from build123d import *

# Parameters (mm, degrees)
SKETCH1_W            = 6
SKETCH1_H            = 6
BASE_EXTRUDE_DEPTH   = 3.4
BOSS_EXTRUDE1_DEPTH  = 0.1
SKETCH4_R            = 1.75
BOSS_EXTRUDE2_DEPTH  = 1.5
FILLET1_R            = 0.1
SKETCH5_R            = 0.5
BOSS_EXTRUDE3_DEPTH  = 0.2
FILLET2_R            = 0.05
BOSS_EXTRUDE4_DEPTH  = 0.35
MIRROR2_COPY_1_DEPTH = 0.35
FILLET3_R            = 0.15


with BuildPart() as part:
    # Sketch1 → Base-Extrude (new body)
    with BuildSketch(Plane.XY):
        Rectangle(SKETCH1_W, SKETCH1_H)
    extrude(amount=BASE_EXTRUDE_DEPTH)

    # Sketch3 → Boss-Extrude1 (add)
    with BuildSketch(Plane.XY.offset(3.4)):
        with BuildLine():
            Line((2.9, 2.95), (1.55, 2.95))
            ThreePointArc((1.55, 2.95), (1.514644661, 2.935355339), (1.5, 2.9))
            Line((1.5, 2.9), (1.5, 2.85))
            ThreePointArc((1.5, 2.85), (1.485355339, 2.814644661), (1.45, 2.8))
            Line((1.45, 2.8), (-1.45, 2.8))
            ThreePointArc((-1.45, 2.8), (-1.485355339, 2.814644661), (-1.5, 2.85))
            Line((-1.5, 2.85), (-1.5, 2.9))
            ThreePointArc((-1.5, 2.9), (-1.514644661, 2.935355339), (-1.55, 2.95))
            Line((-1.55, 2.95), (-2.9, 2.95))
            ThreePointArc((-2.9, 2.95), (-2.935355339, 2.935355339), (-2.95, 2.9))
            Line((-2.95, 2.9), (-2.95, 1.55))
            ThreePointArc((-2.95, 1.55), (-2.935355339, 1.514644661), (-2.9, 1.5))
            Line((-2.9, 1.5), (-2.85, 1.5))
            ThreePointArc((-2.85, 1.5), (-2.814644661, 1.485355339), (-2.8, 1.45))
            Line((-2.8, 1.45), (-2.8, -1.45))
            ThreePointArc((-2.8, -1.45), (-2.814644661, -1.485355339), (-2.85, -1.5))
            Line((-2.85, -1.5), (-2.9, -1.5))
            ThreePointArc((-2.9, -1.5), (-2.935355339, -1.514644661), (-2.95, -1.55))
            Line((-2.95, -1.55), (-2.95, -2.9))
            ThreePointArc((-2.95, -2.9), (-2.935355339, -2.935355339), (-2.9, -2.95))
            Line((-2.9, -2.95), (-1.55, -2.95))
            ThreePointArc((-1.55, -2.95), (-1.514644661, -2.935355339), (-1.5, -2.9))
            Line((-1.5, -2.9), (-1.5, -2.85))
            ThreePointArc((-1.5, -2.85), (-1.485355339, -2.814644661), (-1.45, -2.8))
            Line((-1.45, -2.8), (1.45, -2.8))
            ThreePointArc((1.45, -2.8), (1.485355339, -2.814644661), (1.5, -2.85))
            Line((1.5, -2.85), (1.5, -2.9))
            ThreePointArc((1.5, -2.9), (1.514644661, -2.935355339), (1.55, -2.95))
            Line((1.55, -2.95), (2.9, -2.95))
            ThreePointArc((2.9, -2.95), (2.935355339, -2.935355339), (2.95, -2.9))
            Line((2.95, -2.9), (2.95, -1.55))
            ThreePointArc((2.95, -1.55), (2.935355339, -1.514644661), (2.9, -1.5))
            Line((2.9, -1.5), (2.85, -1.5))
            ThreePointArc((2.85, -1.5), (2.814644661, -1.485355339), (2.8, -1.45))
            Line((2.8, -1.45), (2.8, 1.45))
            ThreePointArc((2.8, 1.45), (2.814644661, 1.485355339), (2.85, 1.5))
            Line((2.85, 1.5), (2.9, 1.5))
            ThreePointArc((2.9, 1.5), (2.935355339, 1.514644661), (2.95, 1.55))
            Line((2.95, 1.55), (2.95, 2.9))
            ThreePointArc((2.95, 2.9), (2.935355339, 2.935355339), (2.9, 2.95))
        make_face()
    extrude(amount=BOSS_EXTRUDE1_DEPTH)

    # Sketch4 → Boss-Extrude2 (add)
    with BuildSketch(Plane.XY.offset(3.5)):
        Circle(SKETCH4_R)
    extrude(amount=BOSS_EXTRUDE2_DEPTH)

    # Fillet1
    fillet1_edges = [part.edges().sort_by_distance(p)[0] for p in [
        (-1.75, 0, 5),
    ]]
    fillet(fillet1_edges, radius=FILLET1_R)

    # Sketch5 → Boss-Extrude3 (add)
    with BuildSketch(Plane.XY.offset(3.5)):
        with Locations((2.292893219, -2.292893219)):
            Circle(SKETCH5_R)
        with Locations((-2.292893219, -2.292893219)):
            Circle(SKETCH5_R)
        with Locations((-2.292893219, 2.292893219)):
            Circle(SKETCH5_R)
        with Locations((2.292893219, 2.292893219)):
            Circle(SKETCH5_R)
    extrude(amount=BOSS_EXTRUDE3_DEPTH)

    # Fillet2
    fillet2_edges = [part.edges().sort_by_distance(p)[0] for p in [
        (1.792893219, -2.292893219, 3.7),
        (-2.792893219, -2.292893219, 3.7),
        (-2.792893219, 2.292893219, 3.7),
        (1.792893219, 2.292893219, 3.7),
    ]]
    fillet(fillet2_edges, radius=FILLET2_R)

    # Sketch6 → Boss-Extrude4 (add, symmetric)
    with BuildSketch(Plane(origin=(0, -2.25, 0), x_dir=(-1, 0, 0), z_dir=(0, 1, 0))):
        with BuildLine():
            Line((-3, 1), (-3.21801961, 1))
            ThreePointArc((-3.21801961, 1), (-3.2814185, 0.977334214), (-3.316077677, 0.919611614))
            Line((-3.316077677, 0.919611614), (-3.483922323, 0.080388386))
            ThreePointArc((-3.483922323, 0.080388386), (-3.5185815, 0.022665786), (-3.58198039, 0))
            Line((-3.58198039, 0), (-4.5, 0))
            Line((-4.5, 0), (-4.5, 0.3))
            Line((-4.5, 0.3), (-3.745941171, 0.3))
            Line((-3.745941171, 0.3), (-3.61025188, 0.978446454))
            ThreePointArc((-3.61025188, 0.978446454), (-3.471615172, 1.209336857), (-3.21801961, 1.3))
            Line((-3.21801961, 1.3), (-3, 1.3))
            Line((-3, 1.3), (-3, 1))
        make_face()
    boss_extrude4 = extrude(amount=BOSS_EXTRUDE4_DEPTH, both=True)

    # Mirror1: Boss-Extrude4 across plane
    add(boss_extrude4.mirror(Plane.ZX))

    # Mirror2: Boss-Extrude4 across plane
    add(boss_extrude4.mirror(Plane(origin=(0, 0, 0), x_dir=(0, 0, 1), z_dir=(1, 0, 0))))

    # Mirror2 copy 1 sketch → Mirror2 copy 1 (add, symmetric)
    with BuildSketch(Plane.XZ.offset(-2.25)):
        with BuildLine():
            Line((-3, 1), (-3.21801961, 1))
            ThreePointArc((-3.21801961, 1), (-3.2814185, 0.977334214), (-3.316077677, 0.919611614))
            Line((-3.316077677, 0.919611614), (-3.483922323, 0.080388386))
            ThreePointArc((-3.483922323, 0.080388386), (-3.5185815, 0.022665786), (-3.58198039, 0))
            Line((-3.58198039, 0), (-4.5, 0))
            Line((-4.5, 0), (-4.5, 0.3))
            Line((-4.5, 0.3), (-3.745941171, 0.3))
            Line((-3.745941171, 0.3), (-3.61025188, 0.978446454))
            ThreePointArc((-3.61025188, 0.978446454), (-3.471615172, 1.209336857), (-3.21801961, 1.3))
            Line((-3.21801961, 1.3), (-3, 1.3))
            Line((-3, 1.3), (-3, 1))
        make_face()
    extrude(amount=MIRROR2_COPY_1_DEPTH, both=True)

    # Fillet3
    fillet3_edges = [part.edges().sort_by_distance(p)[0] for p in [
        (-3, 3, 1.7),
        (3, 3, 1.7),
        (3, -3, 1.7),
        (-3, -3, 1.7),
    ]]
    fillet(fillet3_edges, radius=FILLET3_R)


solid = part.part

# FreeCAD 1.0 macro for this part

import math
import FreeCAD as App
import Part
import Sketcher

V = App.Vector
Q = App.Units.Quantity


def edges_at(feature, points):
    """Names of the edges that pass closest to the given points."""
    edges = feature.Shape.Edges
    near = lambda p: min(range(len(edges)), key=lambda i: edges[i].distToShape(Part.Vertex(*p))[0])
    return sorted({f"Edge{near(p) + 1}" for p in points})


def add_polygon(sketch, points):
    """Adds a closed chain of lines whose ends are joined by coincident constraints."""
    first, n = sketch.GeometryCount, len(points)
    for a, b in zip(points, points[1:] + points[:1]):
        sketch.addGeometry(Part.LineSegment(App.Vector(*a, 0), App.Vector(*b, 0)), False)
    for i in range(n):
        sketch.addConstraint(Sketcher.Constraint("Coincident", first + i, 2, first + (i + 1) % n, 1))

doc = App.newDocument("Part")
body = doc.addObject("PartDesign::Body", "Body")

sketch1 = doc.addObject("Sketcher::SketchObject", "Sketch")
body.addObject(sketch1)
sketch1.AttachmentSupport = (doc.XY_Plane, [""])
sketch1.MapMode = "FlatFace"
add_polygon(sketch1, [(-3, 3), (-3, -3), (3, -3), (3, 3)])
sketch1.addConstraint([
    Sketcher.Constraint("Vertical", 0),
    Sketcher.Constraint("Horizontal", 1),
    Sketcher.Constraint("Vertical", 2),
    Sketcher.Constraint("Horizontal", 3),
    Sketcher.Constraint("Symmetric", 0, 2, 2, 2, -1, 1),
    Sketcher.Constraint("Equal", 3, 0),
    Sketcher.Constraint("DistanceX", 1, 1, 1, 2, Q("6 mm")),
])
pad1 = doc.addObject("PartDesign::Pad", "Pad")
body.addObject(pad1)
pad1.Profile = sketch1
pad1.Length = 3.4

sketch2 = doc.addObject("Sketcher::SketchObject", "Sketch001")
body.addObject(sketch2)
sketch2.AttachmentSupport = (doc.XY_Plane, [""])
sketch2.MapMode = "FlatFace"
sketch2.AttachmentOffset = App.Placement(V(0, 0, 3.4), App.Rotation())
sketch2.addGeometry([
    Part.LineSegment(V(2.9, 2.95, 0), V(1.55, 2.95, 0)),
    Part.ArcOfCircle(Part.Circle(V(1.55, 2.9, 0), V(0, 0, 1), 0.05), math.radians(90), math.radians(180)),
    Part.LineSegment(V(1.5, 2.9, 0), V(1.5, 2.85, 0)),
    Part.ArcOfCircle(Part.Circle(V(1.45, 2.85, 0), V(0, 0, 1), 0.05), math.radians(-90), math.radians(0)),
    Part.LineSegment(V(1.45, 2.8, 0), V(-1.45, 2.8, 0)),
    Part.ArcOfCircle(Part.Circle(V(-1.45, 2.85, 0), V(0, 0, 1), 0.05), math.radians(180), math.radians(270)),
    Part.LineSegment(V(-1.5, 2.85, 0), V(-1.5, 2.9, 0)),
    Part.ArcOfCircle(Part.Circle(V(-1.55, 2.9, 0), V(0, 0, 1), 0.05), math.radians(0), math.radians(90)),
    Part.LineSegment(V(-1.55, 2.95, 0), V(-2.9, 2.95, 0)),
    Part.ArcOfCircle(Part.Circle(V(-2.9, 2.9, 0), V(0, 0, 1), 0.05), math.radians(90), math.radians(180)),
    Part.LineSegment(V(-2.95, 2.9, 0), V(-2.95, 1.55, 0)),
    Part.ArcOfCircle(Part.Circle(V(-2.9, 1.55, 0), V(0, 0, 1), 0.05), math.radians(180), math.radians(270)),
    Part.LineSegment(V(-2.9, 1.5, 0), V(-2.85, 1.5, 0)),
    Part.ArcOfCircle(Part.Circle(V(-2.85, 1.45, 0), V(0, 0, 1), 0.05), math.radians(0), math.radians(90)),
    Part.LineSegment(V(-2.8, 1.45, 0), V(-2.8, -1.45, 0)),
    Part.ArcOfCircle(Part.Circle(V(-2.85, -1.45, 0), V(0, 0, 1), 0.05), math.radians(-90), math.radians(0)),
    Part.LineSegment(V(-2.85, -1.5, 0), V(-2.9, -1.5, 0)),
    Part.ArcOfCircle(Part.Circle(V(-2.9, -1.55, 0), V(0, 0, 1), 0.05), math.radians(90), math.radians(180)),
    Part.LineSegment(V(-2.95, -1.55, 0), V(-2.95, -2.9, 0)),
    Part.ArcOfCircle(Part.Circle(V(-2.9, -2.9, 0), V(0, 0, 1), 0.05), math.radians(180), math.radians(270)),
    Part.LineSegment(V(-2.9, -2.95, 0), V(-1.55, -2.95, 0)),
    Part.ArcOfCircle(Part.Circle(V(-1.55, -2.9, 0), V(0, 0, 1), 0.05), math.radians(-90), math.radians(0)),
    Part.LineSegment(V(-1.5, -2.9, 0), V(-1.5, -2.85, 0)),
    Part.ArcOfCircle(Part.Circle(V(-1.45, -2.85, 0), V(0, 0, 1), 0.05), math.radians(90), math.radians(180)),
    Part.LineSegment(V(-1.45, -2.8, 0), V(1.45, -2.8, 0)),
    Part.ArcOfCircle(Part.Circle(V(1.45, -2.85, 0), V(0, 0, 1), 0.05), math.radians(0), math.radians(90)),
    Part.LineSegment(V(1.5, -2.85, 0), V(1.5, -2.9, 0)),
    Part.ArcOfCircle(Part.Circle(V(1.55, -2.9, 0), V(0, 0, 1), 0.05), math.radians(180), math.radians(270)),
    Part.LineSegment(V(1.55, -2.95, 0), V(2.9, -2.95, 0)),
    Part.ArcOfCircle(Part.Circle(V(2.9, -2.9, 0), V(0, 0, 1), 0.05), math.radians(-90), math.radians(0)),
    Part.LineSegment(V(2.95, -2.9, 0), V(2.95, -1.55, 0)),
    Part.ArcOfCircle(Part.Circle(V(2.9, -1.55, 0), V(0, 0, 1), 0.05), math.radians(0), math.radians(90)),
    Part.LineSegment(V(2.9, -1.5, 0), V(2.85, -1.5, 0)),
    Part.ArcOfCircle(Part.Circle(V(2.85, -1.45, 0), V(0, 0, 1), 0.05), math.radians(180), math.radians(270)),
    Part.LineSegment(V(2.8, -1.45, 0), V(2.8, 1.45, 0)),
    Part.ArcOfCircle(Part.Circle(V(2.85, 1.45, 0), V(0, 0, 1), 0.05), math.radians(90), math.radians(180)),
    Part.LineSegment(V(2.85, 1.5, 0), V(2.9, 1.5, 0)),
    Part.ArcOfCircle(Part.Circle(V(2.9, 1.55, 0), V(0, 0, 1), 0.05), math.radians(-90), math.radians(0)),
    Part.LineSegment(V(2.95, 1.55, 0), V(2.95, 2.9, 0)),
    Part.ArcOfCircle(Part.Circle(V(2.9, 2.9, 0), V(0, 0, 1), 0.05), math.radians(0), math.radians(90)),
], False)
sketch2.addConstraint([
    Sketcher.Constraint("Tangent", 0, 2, 1, 1),
    Sketcher.Constraint("Tangent", 1, 2, 2, 1),
    Sketcher.Constraint("Tangent", 2, 2, 3, 2),
    Sketcher.Constraint("Tangent", 3, 1, 4, 1),
    Sketcher.Constraint("Tangent", 4, 2, 5, 2),
    Sketcher.Constraint("Tangent", 5, 1, 6, 1),
    Sketcher.Constraint("Tangent", 6, 2, 7, 1),
    Sketcher.Constraint("Tangent", 7, 2, 8, 1),
    Sketcher.Constraint("Tangent", 8, 2, 9, 1),
    Sketcher.Constraint("Tangent", 9, 2, 10, 1),
    Sketcher.Constraint("Tangent", 10, 2, 11, 1),
    Sketcher.Constraint("Tangent", 11, 2, 12, 1),
    Sketcher.Constraint("Tangent", 12, 2, 13, 2),
    Sketcher.Constraint("Tangent", 13, 1, 14, 1),
    Sketcher.Constraint("Tangent", 14, 2, 15, 2),
    Sketcher.Constraint("Tangent", 15, 1, 16, 1),
    Sketcher.Constraint("Tangent", 16, 2, 17, 1),
    Sketcher.Constraint("Tangent", 17, 2, 18, 1),
    Sketcher.Constraint("Tangent", 18, 2, 19, 1),
    Sketcher.Constraint("Tangent", 19, 2, 20, 1),
    Sketcher.Constraint("Tangent", 20, 2, 21, 1),
    Sketcher.Constraint("Tangent", 21, 2, 22, 1),
    Sketcher.Constraint("Tangent", 22, 2, 23, 2),
    Sketcher.Constraint("Tangent", 23, 1, 24, 1),
    Sketcher.Constraint("Tangent", 24, 2, 25, 2),
    Sketcher.Constraint("Tangent", 25, 1, 26, 1),
    Sketcher.Constraint("Tangent", 26, 2, 27, 1),
    Sketcher.Constraint("Tangent", 27, 2, 28, 1),
    Sketcher.Constraint("Tangent", 28, 2, 29, 1),
    Sketcher.Constraint("Tangent", 29, 2, 30, 1),
    Sketcher.Constraint("Tangent", 30, 2, 31, 1),
    Sketcher.Constraint("Tangent", 31, 2, 32, 1),
    Sketcher.Constraint("Tangent", 32, 2, 33, 2),
    Sketcher.Constraint("Tangent", 33, 1, 34, 1),
    Sketcher.Constraint("Tangent", 34, 2, 35, 2),
    Sketcher.Constraint("Tangent", 35, 1, 36, 1),
    Sketcher.Constraint("Tangent", 36, 2, 37, 1),
    Sketcher.Constraint("Tangent", 37, 2, 38, 1),
    Sketcher.Constraint("Tangent", 38, 2, 39, 1),
    Sketcher.Constraint("Tangent", 39, 2, 0, 1),
    Sketcher.Constraint("Horizontal", 0),
    Sketcher.Constraint("Vertical", 2),
    Sketcher.Constraint("Horizontal", 4),
    Sketcher.Constraint("Vertical", 6),
    Sketcher.Constraint("Horizontal", 8),
    Sketcher.Constraint("Vertical", 10),
    Sketcher.Constraint("Horizontal", 12),
    Sketcher.Constraint("Vertical", 14),
    Sketcher.Constraint("Horizontal", 16),
    Sketcher.Constraint("Vertical", 18),
    Sketcher.Constraint("Horizontal", 20),
    Sketcher.Constraint("Vertical", 22),
    Sketcher.Constraint("Horizontal", 24),
    Sketcher.Constraint("Vertical", 26),
    Sketcher.Constraint("Horizontal", 28),
    Sketcher.Constraint("Vertical", 30),
    Sketcher.Constraint("Horizontal", 32),
    Sketcher.Constraint("Vertical", 34),
    Sketcher.Constraint("Horizontal", 36),
    Sketcher.Constraint("Vertical", 38),
    Sketcher.Constraint("Equal", 1, 3),
    Sketcher.Constraint("Equal", 3, 5),
    Sketcher.Constraint("Equal", 5, 7),
    Sketcher.Constraint("Equal", 7, 9),
    Sketcher.Constraint("Equal", 9, 11),
    Sketcher.Constraint("Equal", 11, 13),
    Sketcher.Constraint("Equal", 13, 15),
    Sketcher.Constraint("Equal", 15, 17),
    Sketcher.Constraint("Equal", 17, 19),
    Sketcher.Constraint("Equal", 19, 21),
    Sketcher.Constraint("Equal", 21, 23),
    Sketcher.Constraint("Equal", 23, 25),
    Sketcher.Constraint("Equal", 25, 27),
    Sketcher.Constraint("Equal", 27, 29),
    Sketcher.Constraint("Equal", 29, 31),
    Sketcher.Constraint("Equal", 31, 33),
    Sketcher.Constraint("Equal", 33, 35),
    Sketcher.Constraint("Equal", 35, 37),
    Sketcher.Constraint("Equal", 37, 39),
    Sketcher.Constraint("Symmetric", 1, 3, 21, 3, -1, 1),
    Sketcher.Constraint("Symmetric", 5, 3, 25, 3, -1, 1),
    Sketcher.Constraint("Symmetric", 9, 3, 29, 3, -1, 1),
    Sketcher.Constraint("Symmetric", 13, 3, 33, 3, -1, 1),
    Sketcher.Constraint("Symmetric", 17, 3, 37, 3, -1, 1),
    Sketcher.Constraint("Symmetric", 1, 3, 7, 3, -2),
    Sketcher.Constraint("Symmetric", 17, 3, 31, 3, -2),
    Sketcher.Constraint("Equal", 36, 2),
    Sketcher.Constraint("Equal", 28, 10),
    Sketcher.Constraint("Equal", 24, 14),
    Sketcher.Constraint("Radius", 1, Q("0.05 mm")),
    Sketcher.Constraint("DistanceX", 4, 2, 4, 1, Q("2.9 mm")),
    Sketcher.Constraint("DistanceX", 0, 2, 0, 1, Q("1.35 mm")),
    Sketcher.Constraint("DistanceX", 12, 1, 12, 2, Q("0.05 mm")),
])
pad2 = doc.addObject("PartDesign::Pad", "Pad001")
body.addObject(pad2)
pad2.Profile = sketch2
pad2.Length = 0.1

sketch3 = doc.addObject("Sketcher::SketchObject", "Sketch002")
body.addObject(sketch3)
sketch3.AttachmentSupport = (doc.XY_Plane, [""])
sketch3.MapMode = "FlatFace"
sketch3.AttachmentOffset = App.Placement(V(0, 0, 3.5), App.Rotation())
sketch3.addGeometry(Part.Circle(V(0, 0, 0), V(0, 0, 1), 1.8), False)
sketch3.addConstraint([
    Sketcher.Constraint("Coincident", 0, 3, -1, 1),
    Sketcher.Constraint("Diameter", 0, Q("3.5 mm")),
])
pad3 = doc.addObject("PartDesign::Pad", "Pad002")
body.addObject(pad3)
pad3.Profile = sketch3
pad3.Length = 1.5
doc.recompute()

fillet = doc.addObject("PartDesign::Fillet", "Fillet")
body.addObject(fillet)
fillet.Base = (pad3, edges_at(pad3, [(-1.75, 0, 5)]))
fillet.Radius = 0.1

sketch4 = doc.addObject("Sketcher::SketchObject", "Sketch003")
body.addObject(sketch4)
sketch4.AttachmentSupport = (doc.XY_Plane, [""])
sketch4.MapMode = "FlatFace"
sketch4.AttachmentOffset = App.Placement(V(0, 0, 3.5), App.Rotation())
sketch4.addGeometry([
    Part.Circle(V(2.3, -2.3, 0), V(0, 0, 1), 0.5),
    Part.Circle(V(-2.3, -2.3, 0), V(0, 0, 1), 0.5),
    Part.Circle(V(-2.3, 2.3, 0), V(0, 0, 1), 0.5),
    Part.Circle(V(2.3, 2.3, 0), V(0, 0, 1), 0.5),
], False)
sketch4.addConstraint([
    Sketcher.Constraint("Equal", 0, 1),
    Sketcher.Constraint("Equal", 1, 2),
    Sketcher.Constraint("Equal", 2, 3),
    Sketcher.Constraint("Symmetric", 0, 3, 2, 3, -1, 1),
    Sketcher.Constraint("Symmetric", 1, 3, 3, 3, -1, 1),
    Sketcher.Constraint("Symmetric", 0, 3, 1, 3, -2),
    Sketcher.Constraint("Diameter", 0, Q("1 mm")),
    Sketcher.Constraint("DistanceX", -1, 1, 0, 3, Q("2.292893 mm")),
    Sketcher.Constraint("DistanceY", 0, 3, -1, 1, Q("2.292893 mm")),
])
pad4 = doc.addObject("PartDesign::Pad", "Pad003")
body.addObject(pad4)
pad4.Profile = sketch4
pad4.Length = 0.2
doc.recompute()

fillet2 = doc.addObject("PartDesign::Fillet", "Fillet001")
body.addObject(fillet2)
fillet2.Base = (pad4, edges_at(pad4, [
    (1.793, -2.293, 3.7),
    (-2.793, -2.293, 3.7),
    (-2.793, 2.293, 3.7),
    (1.793, 2.293, 3.7),
]))
fillet2.Radius = 0.05

sketch5 = doc.addObject("Sketcher::SketchObject", "Sketch004")
body.addObject(sketch5)
sketch5.AttachmentSupport = (doc.XZ_Plane, [""])
sketch5.MapMode = "FlatFace"
sketch5.AttachmentOffset = App.Placement(V(0, 0, 2.25), App.Rotation())
sketch5.addGeometry([
    Part.LineSegment(V(3.22, 1, 0), V(3, 1, 0)),
    Part.LineSegment(V(3, 1, 0), V(3, 1.3, 0)),
    Part.LineSegment(V(3, 1.3, 0), V(3.22, 1.3, 0)),
    Part.ArcOfCircle(Part.Circle(V(3.22, 0.9, 0), V(0, 0, 1), 0.4), math.radians(11), math.radians(90)),
    Part.LineSegment(V(3.61, 0.98, 0), V(3.75, 0.3, 0)),
    Part.LineSegment(V(3.75, 0.3, 0), V(4.5, 0.3, 0)),
    Part.LineSegment(V(4.5, 0.3, 0), V(4.5, 0, 0)),
    Part.LineSegment(V(4.5, 0, 0), V(3.58, 0, 0)),
    Part.ArcOfCircle(Part.Circle(V(3.58, 0.1, 0), V(0, 0, 1), 0.1), math.radians(-169), math.radians(-90)),
    Part.LineSegment(V(3.48, 0.08, 0), V(3.32, 0.92, 0)),
    Part.ArcOfCircle(Part.Circle(V(3.22, 0.9, 0), V(0, 0, 1), 0.1), math.radians(11), math.radians(90)),
], False)
sketch5.addConstraint([
    Sketcher.Constraint("Coincident", 0, 2, 1, 1),
    Sketcher.Constraint("Coincident", 1, 2, 2, 1),
    Sketcher.Constraint("Tangent", 2, 2, 3, 2),
    Sketcher.Constraint("Tangent", 3, 1, 4, 1),
    Sketcher.Constraint("Coincident", 4, 2, 5, 1),
    Sketcher.Constraint("Coincident", 5, 2, 6, 1),
    Sketcher.Constraint("Coincident", 6, 2, 7, 1),
    Sketcher.Constraint("Tangent", 7, 2, 8, 2),
    Sketcher.Constraint("Tangent", 8, 1, 9, 1),
    Sketcher.Constraint("Tangent", 9, 2, 10, 1),
    Sketcher.Constraint("Tangent", 10, 2, 0, 1),
    Sketcher.Constraint("Horizontal", 0),
    Sketcher.Constraint("Vertical", 1),
    Sketcher.Constraint("Horizontal", 2),
    Sketcher.Constraint("Horizontal", 5),
    Sketcher.Constraint("Vertical", 6),
    Sketcher.Constraint("Horizontal", 7),
    Sketcher.Constraint("Coincident", 10, 3, 3, 3),
    Sketcher.Constraint("Equal", 8, 10),
    Sketcher.Constraint("PointOnObject", 6, 2, -1),
    Sketcher.Constraint("Parallel", 4, 9),
    Sketcher.Constraint("Equal", 1, 6),
    Sketcher.Constraint("Radius", 3, Q("0.4 mm")),
    Sketcher.Constraint("Radius", 8, Q("0.1 mm")),
    Sketcher.Constraint("DistanceX", -1, 1, 0, 2, Q("3 mm")),
    Sketcher.Constraint("DistanceY", -1, 1, 0, 2, Q("1 mm")),
    Sketcher.Constraint("DistanceX", -1, 1, 5, 2, Q("4.5 mm")),
    Sketcher.Constraint("DistanceX", 0, 2, 0, 1, Q("0.21802 mm")),
    Sketcher.Constraint("DistanceX", 5, 1, 5, 2, Q("0.754059 mm")),
])
pad5 = doc.addObject("PartDesign::Pad", "Pad004")
body.addObject(pad5)
pad5.Profile = sketch5
pad5.Length = 0.7
pad5.Midplane = True
doc.recompute()

mirrored = doc.addObject("PartDesign::Mirrored", "Mirrored")
body.addObject(mirrored)
mirrored.Originals = [pad5]
mirrored.MirrorPlane = (doc.XZ_Plane, [""])
body.Tip = mirrored
doc.recompute()

mirrored2 = doc.addObject("PartDesign::Mirrored", "Mirrored001")
body.addObject(mirrored2)
mirrored2.Originals = [pad5]
mirrored2.MirrorPlane = (doc.YZ_Plane, [""])
body.Tip = mirrored2

sketch6 = doc.addObject("Sketcher::SketchObject", "Sketch005")
body.addObject(sketch6)
sketch6.AttachmentSupport = (doc.XZ_Plane, [""])
sketch6.MapMode = "FlatFace"
sketch6.AttachmentOffset = App.Placement(V(0, 0, -2.25), App.Rotation())
sketch6.addGeometry([
    Part.LineSegment(V(-3.22, 1, 0), V(-3, 1, 0)),
    Part.LineSegment(V(-3, 1, 0), V(-3, 1.3, 0)),
    Part.LineSegment(V(-3, 1.3, 0), V(-3.22, 1.3, 0)),
    Part.ArcOfCircle(Part.Circle(V(-3.22, 0.9, 0), V(0, 0, 1), 0.4), math.radians(90), math.radians(169)),
    Part.LineSegment(V(-3.61, 0.98, 0), V(-3.75, 0.3, 0)),
    Part.LineSegment(V(-3.75, 0.3, 0), V(-4.5, 0.3, 0)),
    Part.LineSegment(V(-4.5, 0.3, 0), V(-4.5, 0, 0)),
    Part.LineSegment(V(-4.5, 0, 0), V(-3.58, 0, 0)),
    Part.ArcOfCircle(Part.Circle(V(-3.58, 0.1, 0), V(0, 0, 1), 0.1), math.radians(-90), math.radians(-11)),
    Part.LineSegment(V(-3.48, 0.08, 0), V(-3.32, 0.92, 0)),
    Part.ArcOfCircle(Part.Circle(V(-3.22, 0.9, 0), V(0, 0, 1), 0.1), math.radians(90), math.radians(169)),
], False)
sketch6.addConstraint([
    Sketcher.Constraint("Coincident", 0, 2, 1, 1),
    Sketcher.Constraint("Coincident", 1, 2, 2, 1),
    Sketcher.Constraint("Tangent", 2, 2, 3, 1),
    Sketcher.Constraint("Tangent", 3, 2, 4, 1),
    Sketcher.Constraint("Coincident", 4, 2, 5, 1),
    Sketcher.Constraint("Coincident", 5, 2, 6, 1),
    Sketcher.Constraint("Coincident", 6, 2, 7, 1),
    Sketcher.Constraint("Tangent", 7, 2, 8, 1),
    Sketcher.Constraint("Tangent", 8, 2, 9, 1),
    Sketcher.Constraint("Tangent", 9, 2, 10, 2),
    Sketcher.Constraint("Tangent", 10, 1, 0, 1),
    Sketcher.Constraint("Horizontal", 0),
    Sketcher.Constraint("Vertical", 1),
    Sketcher.Constraint("Horizontal", 2),
    Sketcher.Constraint("Horizontal", 5),
    Sketcher.Constraint("Vertical", 6),
    Sketcher.Constraint("Horizontal", 7),
    Sketcher.Constraint("Coincident", 10, 3, 3, 3),
    Sketcher.Constraint("Equal", 8, 10),
    Sketcher.Constraint("PointOnObject", 6, 2, -1),
    Sketcher.Constraint("Parallel", 4, 9),
    Sketcher.Constraint("Equal", 1, 6),
    Sketcher.Constraint("Radius", 3, Q("0.4 mm")),
    Sketcher.Constraint("Radius", 8, Q("0.1 mm")),
    Sketcher.Constraint("DistanceX", 0, 2, -1, 1, Q("3 mm")),
    Sketcher.Constraint("DistanceY", -1, 1, 0, 2, Q("1 mm")),
    Sketcher.Constraint("DistanceX", 5, 2, -1, 1, Q("4.5 mm")),
    Sketcher.Constraint("DistanceX", 0, 1, 0, 2, Q("0.21802 mm")),
    Sketcher.Constraint("DistanceX", 5, 2, 5, 1, Q("0.754059 mm")),
])
pad6 = doc.addObject("PartDesign::Pad", "Pad005")
body.addObject(pad6)
pad6.Profile = sketch6
pad6.Length = 0.7
pad6.Midplane = True
doc.recompute()

fillet3 = doc.addObject("PartDesign::Fillet", "Fillet002")
body.addObject(fillet3)
fillet3.Base = (pad6, edges_at(pad6, [
    (-3, 3, 1.7),
    (3, 3, 1.7),
    (3, -3, 1.7),
    (-3, -3, 1.7),
]))
fillet3.Radius = 0.15

doc.recompute()
